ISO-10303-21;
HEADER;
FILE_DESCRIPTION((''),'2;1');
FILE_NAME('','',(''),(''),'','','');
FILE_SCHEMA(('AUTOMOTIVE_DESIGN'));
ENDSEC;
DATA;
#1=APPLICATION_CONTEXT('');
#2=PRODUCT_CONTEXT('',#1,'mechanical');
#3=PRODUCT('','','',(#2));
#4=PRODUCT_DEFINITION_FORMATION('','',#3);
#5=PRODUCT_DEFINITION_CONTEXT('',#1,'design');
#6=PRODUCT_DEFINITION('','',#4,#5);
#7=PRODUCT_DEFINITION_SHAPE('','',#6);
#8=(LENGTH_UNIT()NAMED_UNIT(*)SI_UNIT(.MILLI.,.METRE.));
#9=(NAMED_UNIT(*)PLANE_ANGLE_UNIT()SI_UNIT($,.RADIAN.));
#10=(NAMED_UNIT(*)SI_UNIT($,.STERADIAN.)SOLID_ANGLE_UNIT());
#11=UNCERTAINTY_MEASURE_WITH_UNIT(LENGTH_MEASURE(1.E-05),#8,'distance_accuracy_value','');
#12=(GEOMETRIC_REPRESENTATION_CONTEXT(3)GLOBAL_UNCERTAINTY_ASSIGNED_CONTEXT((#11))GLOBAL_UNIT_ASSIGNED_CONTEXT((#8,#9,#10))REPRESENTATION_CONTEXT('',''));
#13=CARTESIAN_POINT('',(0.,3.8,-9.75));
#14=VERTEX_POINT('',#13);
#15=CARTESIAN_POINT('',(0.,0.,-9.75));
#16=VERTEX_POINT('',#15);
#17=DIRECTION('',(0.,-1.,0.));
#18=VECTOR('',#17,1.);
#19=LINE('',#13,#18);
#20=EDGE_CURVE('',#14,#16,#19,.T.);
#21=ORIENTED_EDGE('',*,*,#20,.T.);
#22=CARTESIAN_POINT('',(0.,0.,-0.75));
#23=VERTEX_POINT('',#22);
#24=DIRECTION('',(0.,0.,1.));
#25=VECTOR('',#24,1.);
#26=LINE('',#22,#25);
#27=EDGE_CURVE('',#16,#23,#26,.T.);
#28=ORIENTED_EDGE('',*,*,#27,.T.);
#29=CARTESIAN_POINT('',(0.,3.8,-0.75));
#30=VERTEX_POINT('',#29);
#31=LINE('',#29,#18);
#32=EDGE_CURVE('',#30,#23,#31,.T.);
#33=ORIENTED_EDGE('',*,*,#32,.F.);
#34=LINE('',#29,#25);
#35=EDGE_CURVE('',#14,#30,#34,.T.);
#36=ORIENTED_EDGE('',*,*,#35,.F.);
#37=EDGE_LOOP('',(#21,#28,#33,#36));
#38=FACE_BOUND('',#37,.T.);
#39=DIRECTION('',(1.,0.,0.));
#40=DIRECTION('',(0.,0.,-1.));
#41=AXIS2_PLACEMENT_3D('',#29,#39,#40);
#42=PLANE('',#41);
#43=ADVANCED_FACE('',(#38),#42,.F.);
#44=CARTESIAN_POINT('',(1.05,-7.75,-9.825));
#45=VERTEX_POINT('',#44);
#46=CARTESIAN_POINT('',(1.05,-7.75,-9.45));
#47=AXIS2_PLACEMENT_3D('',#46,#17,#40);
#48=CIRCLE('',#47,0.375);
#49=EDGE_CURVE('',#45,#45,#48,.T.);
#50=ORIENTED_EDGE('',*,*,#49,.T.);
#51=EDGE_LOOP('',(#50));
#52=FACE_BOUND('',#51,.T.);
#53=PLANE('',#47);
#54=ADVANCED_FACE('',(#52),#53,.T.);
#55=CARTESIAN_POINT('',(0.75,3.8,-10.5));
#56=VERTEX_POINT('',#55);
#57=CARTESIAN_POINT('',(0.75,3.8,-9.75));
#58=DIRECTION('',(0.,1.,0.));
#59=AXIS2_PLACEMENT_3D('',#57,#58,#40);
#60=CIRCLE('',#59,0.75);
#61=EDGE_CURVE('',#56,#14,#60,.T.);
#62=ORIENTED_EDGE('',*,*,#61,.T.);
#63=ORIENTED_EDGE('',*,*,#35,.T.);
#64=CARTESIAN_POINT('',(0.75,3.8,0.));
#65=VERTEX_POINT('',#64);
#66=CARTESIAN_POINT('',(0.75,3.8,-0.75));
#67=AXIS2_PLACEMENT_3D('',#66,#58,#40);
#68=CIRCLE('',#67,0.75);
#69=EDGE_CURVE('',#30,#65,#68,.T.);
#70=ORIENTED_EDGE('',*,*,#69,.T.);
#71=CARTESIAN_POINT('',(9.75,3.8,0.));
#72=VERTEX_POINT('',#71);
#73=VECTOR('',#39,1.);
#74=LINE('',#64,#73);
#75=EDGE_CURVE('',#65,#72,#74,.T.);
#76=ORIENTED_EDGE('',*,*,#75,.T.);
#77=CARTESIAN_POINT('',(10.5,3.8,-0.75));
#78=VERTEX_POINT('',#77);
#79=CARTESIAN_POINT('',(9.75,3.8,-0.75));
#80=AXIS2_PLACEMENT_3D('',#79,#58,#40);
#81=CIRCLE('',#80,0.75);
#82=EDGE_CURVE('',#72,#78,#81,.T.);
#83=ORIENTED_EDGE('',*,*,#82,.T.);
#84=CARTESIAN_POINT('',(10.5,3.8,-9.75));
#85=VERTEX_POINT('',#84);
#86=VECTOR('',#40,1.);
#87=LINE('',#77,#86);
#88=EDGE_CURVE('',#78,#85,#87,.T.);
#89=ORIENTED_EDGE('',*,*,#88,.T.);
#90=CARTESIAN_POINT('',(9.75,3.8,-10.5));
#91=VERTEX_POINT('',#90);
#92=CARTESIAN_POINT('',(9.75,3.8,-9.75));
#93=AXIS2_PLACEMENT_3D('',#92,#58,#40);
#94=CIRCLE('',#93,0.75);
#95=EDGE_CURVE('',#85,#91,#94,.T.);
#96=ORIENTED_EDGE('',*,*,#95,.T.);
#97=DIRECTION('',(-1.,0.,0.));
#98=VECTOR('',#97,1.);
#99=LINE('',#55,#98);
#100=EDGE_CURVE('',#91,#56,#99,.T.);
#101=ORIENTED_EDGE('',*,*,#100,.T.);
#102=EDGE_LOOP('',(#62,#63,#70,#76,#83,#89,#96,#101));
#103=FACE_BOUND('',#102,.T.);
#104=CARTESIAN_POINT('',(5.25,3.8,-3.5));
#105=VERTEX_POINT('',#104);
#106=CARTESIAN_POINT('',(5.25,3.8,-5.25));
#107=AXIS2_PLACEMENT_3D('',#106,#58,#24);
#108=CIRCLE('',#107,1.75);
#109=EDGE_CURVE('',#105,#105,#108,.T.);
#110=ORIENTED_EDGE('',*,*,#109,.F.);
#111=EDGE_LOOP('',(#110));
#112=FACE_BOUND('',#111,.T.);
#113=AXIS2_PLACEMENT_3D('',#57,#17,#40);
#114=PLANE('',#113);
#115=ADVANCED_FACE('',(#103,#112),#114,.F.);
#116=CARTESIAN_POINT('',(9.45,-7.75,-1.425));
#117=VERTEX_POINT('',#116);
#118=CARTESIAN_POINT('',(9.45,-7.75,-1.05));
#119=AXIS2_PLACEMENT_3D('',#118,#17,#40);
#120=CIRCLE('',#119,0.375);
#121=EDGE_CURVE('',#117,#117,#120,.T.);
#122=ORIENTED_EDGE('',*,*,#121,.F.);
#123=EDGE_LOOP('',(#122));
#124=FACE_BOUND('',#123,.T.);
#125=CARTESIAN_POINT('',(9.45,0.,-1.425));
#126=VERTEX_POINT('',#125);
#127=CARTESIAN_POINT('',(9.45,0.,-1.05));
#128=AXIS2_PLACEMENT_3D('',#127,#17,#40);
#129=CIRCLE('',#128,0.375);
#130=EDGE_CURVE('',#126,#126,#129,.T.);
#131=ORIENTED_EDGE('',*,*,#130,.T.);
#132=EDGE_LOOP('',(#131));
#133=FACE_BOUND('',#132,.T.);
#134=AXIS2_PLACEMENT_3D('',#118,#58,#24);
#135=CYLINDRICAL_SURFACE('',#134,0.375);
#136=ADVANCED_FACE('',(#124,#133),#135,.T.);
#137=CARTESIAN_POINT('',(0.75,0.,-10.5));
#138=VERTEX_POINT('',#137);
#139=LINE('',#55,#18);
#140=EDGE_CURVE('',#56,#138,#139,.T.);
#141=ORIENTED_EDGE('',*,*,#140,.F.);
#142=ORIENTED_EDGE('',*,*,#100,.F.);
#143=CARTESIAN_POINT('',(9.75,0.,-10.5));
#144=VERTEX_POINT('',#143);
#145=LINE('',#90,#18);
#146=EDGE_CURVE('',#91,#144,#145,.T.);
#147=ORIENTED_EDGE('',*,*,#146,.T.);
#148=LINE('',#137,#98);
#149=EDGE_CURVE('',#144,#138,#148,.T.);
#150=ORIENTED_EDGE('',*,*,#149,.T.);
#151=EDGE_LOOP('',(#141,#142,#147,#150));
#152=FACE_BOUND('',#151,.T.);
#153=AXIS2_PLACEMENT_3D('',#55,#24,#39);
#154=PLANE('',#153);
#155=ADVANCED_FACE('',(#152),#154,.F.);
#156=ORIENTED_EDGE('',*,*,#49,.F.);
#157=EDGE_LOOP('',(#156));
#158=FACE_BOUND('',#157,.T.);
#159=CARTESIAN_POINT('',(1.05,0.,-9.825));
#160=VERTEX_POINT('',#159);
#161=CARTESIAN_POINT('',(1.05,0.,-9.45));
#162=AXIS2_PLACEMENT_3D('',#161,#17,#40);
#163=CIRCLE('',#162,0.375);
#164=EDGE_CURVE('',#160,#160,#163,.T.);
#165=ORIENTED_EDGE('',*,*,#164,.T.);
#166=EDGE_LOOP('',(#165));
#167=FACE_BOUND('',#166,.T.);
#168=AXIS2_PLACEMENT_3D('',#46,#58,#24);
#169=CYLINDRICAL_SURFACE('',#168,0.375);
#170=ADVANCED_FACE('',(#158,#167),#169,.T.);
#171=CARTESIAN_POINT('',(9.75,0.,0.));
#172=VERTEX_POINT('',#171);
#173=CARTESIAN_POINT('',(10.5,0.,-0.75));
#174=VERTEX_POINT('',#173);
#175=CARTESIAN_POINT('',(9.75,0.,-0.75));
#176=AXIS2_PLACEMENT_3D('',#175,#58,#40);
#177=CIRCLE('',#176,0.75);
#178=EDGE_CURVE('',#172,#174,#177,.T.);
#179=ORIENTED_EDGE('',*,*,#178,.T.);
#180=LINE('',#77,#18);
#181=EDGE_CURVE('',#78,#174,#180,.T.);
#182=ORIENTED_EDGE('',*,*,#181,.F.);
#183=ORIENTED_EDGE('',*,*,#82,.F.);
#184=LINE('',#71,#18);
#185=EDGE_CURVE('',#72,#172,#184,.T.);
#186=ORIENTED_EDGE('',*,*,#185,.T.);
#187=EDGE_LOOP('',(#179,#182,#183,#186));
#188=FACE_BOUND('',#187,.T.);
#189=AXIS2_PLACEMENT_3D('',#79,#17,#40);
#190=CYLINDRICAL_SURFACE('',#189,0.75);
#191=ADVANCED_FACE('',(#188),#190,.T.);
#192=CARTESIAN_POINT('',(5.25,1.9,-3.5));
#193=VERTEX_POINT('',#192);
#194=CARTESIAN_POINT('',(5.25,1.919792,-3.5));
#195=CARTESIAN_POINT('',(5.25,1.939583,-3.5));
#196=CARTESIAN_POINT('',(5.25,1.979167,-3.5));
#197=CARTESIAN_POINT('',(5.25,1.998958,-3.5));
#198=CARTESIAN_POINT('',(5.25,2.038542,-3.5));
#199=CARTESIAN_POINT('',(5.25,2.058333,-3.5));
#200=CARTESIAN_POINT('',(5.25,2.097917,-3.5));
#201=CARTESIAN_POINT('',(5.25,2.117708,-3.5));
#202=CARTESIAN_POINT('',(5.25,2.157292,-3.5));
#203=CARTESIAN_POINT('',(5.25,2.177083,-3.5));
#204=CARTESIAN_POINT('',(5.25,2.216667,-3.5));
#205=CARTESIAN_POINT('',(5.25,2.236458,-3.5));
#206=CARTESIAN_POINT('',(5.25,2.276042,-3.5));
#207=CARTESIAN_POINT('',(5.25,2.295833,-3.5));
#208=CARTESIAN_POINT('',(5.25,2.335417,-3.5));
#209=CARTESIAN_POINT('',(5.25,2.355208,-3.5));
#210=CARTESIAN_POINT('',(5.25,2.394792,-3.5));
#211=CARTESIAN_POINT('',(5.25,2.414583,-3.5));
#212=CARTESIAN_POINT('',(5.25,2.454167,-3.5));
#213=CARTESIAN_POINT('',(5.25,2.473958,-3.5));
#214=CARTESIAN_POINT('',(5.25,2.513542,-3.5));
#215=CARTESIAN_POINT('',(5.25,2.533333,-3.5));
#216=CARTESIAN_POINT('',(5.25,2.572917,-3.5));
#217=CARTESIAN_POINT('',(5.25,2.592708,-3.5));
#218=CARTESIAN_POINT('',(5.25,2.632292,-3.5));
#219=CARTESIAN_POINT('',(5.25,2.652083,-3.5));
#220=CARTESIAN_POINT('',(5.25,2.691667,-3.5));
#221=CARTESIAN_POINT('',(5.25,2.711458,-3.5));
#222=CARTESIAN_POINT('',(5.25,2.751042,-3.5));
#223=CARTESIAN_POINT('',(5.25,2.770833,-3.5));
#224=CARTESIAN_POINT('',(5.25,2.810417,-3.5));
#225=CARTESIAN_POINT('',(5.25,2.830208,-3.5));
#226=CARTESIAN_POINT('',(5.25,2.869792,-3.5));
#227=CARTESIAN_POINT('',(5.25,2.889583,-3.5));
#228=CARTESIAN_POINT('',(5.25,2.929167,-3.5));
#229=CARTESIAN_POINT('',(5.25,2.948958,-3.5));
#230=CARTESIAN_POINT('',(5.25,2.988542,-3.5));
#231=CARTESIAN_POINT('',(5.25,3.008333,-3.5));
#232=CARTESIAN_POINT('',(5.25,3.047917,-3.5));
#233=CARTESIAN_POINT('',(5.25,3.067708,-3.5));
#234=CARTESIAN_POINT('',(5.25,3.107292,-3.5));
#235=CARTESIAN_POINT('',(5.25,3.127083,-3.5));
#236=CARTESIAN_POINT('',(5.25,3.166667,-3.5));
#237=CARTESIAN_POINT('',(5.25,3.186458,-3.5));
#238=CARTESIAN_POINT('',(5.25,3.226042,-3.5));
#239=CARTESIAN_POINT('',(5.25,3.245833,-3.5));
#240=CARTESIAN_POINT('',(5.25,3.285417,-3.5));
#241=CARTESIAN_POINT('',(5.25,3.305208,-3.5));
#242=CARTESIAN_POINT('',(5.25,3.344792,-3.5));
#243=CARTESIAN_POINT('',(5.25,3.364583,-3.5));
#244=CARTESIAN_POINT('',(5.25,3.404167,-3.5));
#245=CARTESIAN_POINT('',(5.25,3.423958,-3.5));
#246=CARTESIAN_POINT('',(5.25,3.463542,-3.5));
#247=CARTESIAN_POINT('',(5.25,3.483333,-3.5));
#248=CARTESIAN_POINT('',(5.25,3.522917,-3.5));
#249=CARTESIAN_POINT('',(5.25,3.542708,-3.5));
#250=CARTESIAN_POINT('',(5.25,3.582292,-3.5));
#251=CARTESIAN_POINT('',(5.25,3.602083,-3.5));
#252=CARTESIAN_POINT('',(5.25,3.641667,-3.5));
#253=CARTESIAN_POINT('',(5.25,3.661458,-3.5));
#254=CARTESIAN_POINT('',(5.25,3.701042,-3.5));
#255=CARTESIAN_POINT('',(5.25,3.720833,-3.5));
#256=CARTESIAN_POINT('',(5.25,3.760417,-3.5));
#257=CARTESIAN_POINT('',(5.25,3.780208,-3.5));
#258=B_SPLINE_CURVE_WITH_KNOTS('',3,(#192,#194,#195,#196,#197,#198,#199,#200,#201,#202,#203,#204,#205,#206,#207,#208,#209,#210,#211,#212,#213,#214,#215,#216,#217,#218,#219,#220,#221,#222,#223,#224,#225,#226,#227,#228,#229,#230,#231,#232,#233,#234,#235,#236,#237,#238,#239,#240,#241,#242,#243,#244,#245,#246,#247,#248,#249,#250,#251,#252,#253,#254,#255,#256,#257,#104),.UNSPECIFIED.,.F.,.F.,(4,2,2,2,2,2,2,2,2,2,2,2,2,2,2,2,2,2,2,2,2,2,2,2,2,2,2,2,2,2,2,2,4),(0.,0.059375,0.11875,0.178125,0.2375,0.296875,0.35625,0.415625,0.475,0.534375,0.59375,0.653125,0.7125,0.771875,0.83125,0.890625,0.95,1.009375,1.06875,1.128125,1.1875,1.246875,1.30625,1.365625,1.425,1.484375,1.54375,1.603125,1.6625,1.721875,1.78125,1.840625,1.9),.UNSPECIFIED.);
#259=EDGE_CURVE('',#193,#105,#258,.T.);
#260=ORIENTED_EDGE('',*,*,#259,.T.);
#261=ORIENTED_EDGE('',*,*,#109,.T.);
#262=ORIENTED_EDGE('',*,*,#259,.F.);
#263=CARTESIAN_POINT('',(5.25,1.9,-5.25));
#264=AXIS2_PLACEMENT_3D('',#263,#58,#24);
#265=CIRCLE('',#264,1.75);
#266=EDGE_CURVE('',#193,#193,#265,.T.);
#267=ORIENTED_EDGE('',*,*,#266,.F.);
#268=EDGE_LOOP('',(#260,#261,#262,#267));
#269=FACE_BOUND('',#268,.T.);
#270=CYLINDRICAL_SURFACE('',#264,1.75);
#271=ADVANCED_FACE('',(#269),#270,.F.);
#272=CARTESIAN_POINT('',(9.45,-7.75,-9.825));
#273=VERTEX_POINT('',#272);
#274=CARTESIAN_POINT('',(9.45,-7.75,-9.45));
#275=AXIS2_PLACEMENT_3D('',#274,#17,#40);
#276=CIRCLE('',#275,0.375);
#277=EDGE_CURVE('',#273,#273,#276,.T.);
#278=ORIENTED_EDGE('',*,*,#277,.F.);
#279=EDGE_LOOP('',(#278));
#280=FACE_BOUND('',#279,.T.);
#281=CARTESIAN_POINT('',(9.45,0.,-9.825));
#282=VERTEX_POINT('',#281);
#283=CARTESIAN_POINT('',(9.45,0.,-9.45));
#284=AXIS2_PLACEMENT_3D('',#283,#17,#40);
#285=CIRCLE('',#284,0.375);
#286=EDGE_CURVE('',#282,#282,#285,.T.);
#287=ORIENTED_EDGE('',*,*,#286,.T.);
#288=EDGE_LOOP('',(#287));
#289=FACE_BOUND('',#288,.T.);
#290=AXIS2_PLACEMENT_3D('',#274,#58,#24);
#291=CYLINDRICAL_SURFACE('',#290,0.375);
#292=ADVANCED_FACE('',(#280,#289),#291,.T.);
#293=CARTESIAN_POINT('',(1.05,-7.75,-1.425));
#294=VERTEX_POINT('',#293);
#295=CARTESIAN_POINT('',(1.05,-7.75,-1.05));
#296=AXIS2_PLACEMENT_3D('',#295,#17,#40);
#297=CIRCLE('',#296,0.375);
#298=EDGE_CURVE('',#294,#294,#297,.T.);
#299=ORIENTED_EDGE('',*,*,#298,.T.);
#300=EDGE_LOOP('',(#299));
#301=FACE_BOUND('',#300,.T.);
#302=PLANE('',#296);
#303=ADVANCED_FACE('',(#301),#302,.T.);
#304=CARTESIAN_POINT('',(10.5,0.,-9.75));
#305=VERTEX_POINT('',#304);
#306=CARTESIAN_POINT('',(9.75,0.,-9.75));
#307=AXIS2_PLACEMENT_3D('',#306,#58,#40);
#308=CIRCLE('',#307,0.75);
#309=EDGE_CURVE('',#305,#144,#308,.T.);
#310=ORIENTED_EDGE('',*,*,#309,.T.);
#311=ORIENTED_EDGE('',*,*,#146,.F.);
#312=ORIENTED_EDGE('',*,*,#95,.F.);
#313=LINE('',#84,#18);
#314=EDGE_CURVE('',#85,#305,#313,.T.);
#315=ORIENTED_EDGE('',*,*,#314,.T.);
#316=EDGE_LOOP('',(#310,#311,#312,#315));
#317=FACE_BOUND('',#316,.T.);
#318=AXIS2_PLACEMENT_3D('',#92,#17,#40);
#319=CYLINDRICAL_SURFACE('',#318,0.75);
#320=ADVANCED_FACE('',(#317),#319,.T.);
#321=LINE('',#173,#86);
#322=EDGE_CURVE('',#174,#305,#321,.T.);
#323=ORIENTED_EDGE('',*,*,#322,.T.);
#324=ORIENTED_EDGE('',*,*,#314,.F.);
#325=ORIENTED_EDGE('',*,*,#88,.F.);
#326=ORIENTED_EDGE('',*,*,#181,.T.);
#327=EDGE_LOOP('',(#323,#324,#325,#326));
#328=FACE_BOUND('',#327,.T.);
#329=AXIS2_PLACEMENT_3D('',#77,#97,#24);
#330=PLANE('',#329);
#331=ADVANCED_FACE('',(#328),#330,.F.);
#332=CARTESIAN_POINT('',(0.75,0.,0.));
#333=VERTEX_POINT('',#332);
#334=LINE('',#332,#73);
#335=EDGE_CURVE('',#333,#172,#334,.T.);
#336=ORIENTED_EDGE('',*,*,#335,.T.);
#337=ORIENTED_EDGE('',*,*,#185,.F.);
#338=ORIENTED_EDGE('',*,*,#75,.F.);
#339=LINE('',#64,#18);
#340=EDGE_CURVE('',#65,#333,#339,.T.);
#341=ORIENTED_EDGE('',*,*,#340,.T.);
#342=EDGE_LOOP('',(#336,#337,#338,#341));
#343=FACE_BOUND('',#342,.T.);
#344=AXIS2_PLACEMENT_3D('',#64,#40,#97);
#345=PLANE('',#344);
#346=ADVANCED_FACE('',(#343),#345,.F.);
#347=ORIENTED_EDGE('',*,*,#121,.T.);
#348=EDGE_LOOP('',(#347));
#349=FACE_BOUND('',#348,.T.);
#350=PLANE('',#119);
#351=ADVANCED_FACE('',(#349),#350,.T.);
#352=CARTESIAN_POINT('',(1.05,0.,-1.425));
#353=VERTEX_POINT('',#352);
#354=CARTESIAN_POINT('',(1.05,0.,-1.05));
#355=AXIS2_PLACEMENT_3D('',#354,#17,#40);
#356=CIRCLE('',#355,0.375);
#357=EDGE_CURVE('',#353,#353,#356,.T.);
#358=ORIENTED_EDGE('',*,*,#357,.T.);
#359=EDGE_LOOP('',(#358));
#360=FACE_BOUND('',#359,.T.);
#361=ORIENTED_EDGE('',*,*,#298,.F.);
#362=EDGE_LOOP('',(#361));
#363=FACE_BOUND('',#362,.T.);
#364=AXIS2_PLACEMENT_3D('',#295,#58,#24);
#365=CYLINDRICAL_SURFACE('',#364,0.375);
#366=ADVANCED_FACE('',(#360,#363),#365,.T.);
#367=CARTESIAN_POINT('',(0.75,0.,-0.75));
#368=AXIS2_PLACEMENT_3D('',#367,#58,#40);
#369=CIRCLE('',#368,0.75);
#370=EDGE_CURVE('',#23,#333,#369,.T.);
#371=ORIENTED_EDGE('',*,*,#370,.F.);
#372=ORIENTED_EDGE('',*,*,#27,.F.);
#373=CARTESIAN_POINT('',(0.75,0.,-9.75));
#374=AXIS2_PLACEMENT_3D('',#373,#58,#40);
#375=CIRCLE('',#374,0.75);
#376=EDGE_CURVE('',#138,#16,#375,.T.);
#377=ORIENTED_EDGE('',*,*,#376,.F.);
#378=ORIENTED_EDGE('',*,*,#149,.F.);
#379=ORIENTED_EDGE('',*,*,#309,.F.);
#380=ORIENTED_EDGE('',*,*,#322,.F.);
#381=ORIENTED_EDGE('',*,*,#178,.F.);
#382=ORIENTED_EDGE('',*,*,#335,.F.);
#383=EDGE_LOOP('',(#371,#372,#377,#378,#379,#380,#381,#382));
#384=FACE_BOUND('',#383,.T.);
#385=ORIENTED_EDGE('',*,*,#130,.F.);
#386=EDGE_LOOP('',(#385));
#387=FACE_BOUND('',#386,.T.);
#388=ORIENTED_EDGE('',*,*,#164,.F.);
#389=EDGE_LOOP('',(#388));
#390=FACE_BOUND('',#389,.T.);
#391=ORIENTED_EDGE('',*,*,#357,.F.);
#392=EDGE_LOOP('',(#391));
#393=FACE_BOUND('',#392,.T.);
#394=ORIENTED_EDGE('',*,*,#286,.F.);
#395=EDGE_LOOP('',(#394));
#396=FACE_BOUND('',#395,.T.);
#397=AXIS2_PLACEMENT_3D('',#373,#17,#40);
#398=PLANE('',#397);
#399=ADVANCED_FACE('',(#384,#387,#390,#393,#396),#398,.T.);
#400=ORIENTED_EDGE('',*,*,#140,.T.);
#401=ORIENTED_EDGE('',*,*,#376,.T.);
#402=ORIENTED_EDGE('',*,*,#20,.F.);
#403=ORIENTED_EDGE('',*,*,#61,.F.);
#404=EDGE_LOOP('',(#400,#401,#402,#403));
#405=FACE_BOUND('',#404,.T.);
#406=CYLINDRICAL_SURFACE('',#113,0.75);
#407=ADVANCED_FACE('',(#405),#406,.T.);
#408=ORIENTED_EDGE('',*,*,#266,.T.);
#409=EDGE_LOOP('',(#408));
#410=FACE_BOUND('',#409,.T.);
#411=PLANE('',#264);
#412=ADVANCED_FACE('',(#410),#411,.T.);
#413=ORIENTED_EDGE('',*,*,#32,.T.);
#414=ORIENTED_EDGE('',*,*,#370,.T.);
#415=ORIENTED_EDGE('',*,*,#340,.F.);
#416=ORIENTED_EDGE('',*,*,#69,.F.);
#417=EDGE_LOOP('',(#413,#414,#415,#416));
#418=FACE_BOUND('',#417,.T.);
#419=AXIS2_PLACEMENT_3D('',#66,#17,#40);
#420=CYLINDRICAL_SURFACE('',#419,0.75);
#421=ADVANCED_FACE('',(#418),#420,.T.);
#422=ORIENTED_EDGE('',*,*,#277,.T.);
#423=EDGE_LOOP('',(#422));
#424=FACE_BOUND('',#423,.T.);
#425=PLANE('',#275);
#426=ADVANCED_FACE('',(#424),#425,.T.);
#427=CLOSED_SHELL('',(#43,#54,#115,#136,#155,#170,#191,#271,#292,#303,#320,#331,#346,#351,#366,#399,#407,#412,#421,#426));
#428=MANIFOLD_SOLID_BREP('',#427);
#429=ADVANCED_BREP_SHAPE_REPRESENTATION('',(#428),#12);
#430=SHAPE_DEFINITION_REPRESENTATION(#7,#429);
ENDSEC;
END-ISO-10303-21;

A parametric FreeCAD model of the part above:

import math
import FreeCAD as App
import Part
import Sketcher

V = App.Vector

doc = App.newDocument("Part")
body = doc.addObject("PartDesign::Body", "Body")

sketch1 = body.newObject("Sketcher::SketchObject", "Sketch")
sketch1.AttachmentSupport = (doc.getObject("XZ_Plane"), [""])
sketch1.MapMode = "FlatFace"
sketch1.addGeometry([
    Part.LineSegment(V(0.8, 0, 0), V(9.8, 0, 0)),
    Part.ArcOfCircle(Part.Circle(V(9.8, -0.8, 0), V(0, 0, 1), 0.8), math.radians(0), math.radians(90)),
    Part.LineSegment(V(10.5, -0.8, 0), V(10.5, -9.8, 0)),
    Part.ArcOfCircle(Part.Circle(V(9.8, -9.8, 0), V(0, 0, 1), 0.8), math.radians(-90), math.radians(0)),
    Part.LineSegment(V(9.8, -10.5, 0), V(0.8, -10.5, 0)),
    Part.ArcOfCircle(Part.Circle(V(0.8, -9.8, 0), V(0, 0, 1), 0.8), math.radians(180), math.radians(270)),
    Part.LineSegment(V(0, -9.8, 0), V(0, -0.8, 0)),
    Part.ArcOfCircle(Part.Circle(V(0.8, -0.8, 0), V(0, 0, 1), 0.8), math.radians(90), math.radians(180)),
], False)
sketch1.addConstraint([
    Sketcher.Constraint("Tangent", 0, 2, 1, 2),
    Sketcher.Constraint("Tangent", 1, 1, 2, 1),
    Sketcher.Constraint("Tangent", 2, 2, 3, 2),
    Sketcher.Constraint("Tangent", 3, 1, 4, 1),
    Sketcher.Constraint("Tangent", 4, 2, 5, 2),
    Sketcher.Constraint("Tangent", 5, 1, 6, 1),
    Sketcher.Constraint("Tangent", 6, 2, 7, 2),
    Sketcher.Constraint("Tangent", 7, 1, 0, 1),
    Sketcher.Constraint("Horizontal", 0),
    Sketcher.Constraint("Vertical", 2),
    Sketcher.Constraint("Horizontal", 4),
    Sketcher.Constraint("Vertical", 6),
    Sketcher.Constraint("Equal", 1, 3),
    Sketcher.Constraint("Equal", 3, 5),
    Sketcher.Constraint("Equal", 5, 7),
    Sketcher.Constraint("PointOnObject", 0, 2, -1),
    Sketcher.Constraint("PointOnObject", 5, 1, -2),
    Sketcher.Constraint("Equal", 4, 2),
    Sketcher.Constraint("DistanceX", 0, 1, 0, 2, 9.0),
    Sketcher.Constraint("Radius", 1, 0.75),
])
pad1 = body.newObject("PartDesign::Pad", "Pad")
pad1.Profile = sketch1
pad1.Length = 3.8
pad1.Reversed = True

sketch2 = body.newObject("Sketcher::SketchObject", "Sketch001")
sketch2.AttachmentSupport = (doc.getObject("XZ_Plane"), [""])
sketch2.MapMode = "FlatFace"
sketch2.AttachmentOffset = App.Placement(V(0, 0, -3.8), App.Rotation())
sketch2.addGeometry(Part.Circle(V(5.2, -5.2, 0), V(0, 0, 1), 1.8), False)
sketch2.addConstraint([
    Sketcher.Constraint("Diameter", 0, 3.5),
    Sketcher.Constraint("DistanceX", -1, 1, 0, 3, 5.25),
    Sketcher.Constraint("DistanceY", 0, 3, -1, 1, 5.25),
])
pocket1 = body.newObject("PartDesign::Pocket", "Pocket")
pocket1.Profile = sketch2
pocket1.Length = 1.9
pocket1.Reversed = True

sketch3 = body.newObject("Sketcher::SketchObject", "Sketch002")
sketch3.AttachmentSupport = (doc.getObject("XZ_Plane"), [""])
sketch3.MapMode = "FlatFace"
sketch3.addGeometry([
    Part.Circle(V(9.45, -1.05, 0), V(0, 0, 1), 0.38),
    Part.Circle(V(9.45, -9.45, 0), V(0, 0, 1), 0.38),
    Part.Circle(V(1.05, -9.45, 0), V(0, 0, 1), 0.38),
    Part.Circle(V(1.05, -1.05, 0), V(0, 0, 1), 0.38),
], False)
sketch3.addConstraint([
    Sketcher.Constraint("Equal", 0, 1),
    Sketcher.Constraint("Equal", 1, 2),
    Sketcher.Constraint("Equal", 2, 3),
    Sketcher.Constraint("Horizontal", 1, 3, 2, 3),
    Sketcher.Constraint("Horizontal", 0, 3, 3, 3),
    Sketcher.Constraint("Vertical", 0, 3, 1, 3),
    Sketcher.Constraint("Vertical", 2, 3, 3, 3),
    Sketcher.Constraint("Diameter", 0, 0.75),
    Sketcher.Constraint("DistanceY", 1, 3, 0, 3, 8.4),
    Sketcher.Constraint("DistanceX", 2, 3, 1, 3, 8.4),
    Sketcher.Constraint("DistanceX", -1, 1, 0, 3, 9.45),
    Sketcher.Constraint("DistanceY", 0, 3, -1, 1, 1.05),
])
pad2 = body.newObject("PartDesign::Pad", "Pad001")
pad2.Profile = sketch3
pad2.Length = 7.75

doc.recompute()
